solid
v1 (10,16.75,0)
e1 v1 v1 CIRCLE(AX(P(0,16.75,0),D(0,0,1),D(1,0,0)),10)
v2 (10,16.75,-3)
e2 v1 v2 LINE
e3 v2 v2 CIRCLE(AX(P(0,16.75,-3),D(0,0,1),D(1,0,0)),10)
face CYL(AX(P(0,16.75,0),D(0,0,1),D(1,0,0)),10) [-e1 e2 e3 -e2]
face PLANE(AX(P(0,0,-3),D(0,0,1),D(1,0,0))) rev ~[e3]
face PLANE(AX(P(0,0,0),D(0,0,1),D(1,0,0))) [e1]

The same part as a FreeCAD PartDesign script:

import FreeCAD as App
import Part
import Sketcher

doc = App.newDocument("Part")
body = doc.addObject("PartDesign::Body", "Body")

# Sketch on XY plane
sketch1 = body.newObject("Sketcher::SketchObject", "Sketch")
sketch1.AttachmentSupport = (doc.getObject("XY_Plane"), [""])
sketch1.MapMode = "FlatFace"
sketch1.addGeometry(Part.Circle(App.Vector(0, 17, 0), App.Vector(0, 0, 1), 10), False)
sketch1.addConstraint([
    Sketcher.Constraint("PointOnObject", 0, 3, -2),
    Sketcher.Constraint("Diameter", 0, 20.0),
    Sketcher.Constraint("DistanceY", -1, 1, 0, 3, 16.75),
])
pad1 = body.newObject("PartDesign::Pad", "Pad")
pad1.Profile = sketch1
pad1.Length = 3
pad1.Reversed = True

doc.recompute()
